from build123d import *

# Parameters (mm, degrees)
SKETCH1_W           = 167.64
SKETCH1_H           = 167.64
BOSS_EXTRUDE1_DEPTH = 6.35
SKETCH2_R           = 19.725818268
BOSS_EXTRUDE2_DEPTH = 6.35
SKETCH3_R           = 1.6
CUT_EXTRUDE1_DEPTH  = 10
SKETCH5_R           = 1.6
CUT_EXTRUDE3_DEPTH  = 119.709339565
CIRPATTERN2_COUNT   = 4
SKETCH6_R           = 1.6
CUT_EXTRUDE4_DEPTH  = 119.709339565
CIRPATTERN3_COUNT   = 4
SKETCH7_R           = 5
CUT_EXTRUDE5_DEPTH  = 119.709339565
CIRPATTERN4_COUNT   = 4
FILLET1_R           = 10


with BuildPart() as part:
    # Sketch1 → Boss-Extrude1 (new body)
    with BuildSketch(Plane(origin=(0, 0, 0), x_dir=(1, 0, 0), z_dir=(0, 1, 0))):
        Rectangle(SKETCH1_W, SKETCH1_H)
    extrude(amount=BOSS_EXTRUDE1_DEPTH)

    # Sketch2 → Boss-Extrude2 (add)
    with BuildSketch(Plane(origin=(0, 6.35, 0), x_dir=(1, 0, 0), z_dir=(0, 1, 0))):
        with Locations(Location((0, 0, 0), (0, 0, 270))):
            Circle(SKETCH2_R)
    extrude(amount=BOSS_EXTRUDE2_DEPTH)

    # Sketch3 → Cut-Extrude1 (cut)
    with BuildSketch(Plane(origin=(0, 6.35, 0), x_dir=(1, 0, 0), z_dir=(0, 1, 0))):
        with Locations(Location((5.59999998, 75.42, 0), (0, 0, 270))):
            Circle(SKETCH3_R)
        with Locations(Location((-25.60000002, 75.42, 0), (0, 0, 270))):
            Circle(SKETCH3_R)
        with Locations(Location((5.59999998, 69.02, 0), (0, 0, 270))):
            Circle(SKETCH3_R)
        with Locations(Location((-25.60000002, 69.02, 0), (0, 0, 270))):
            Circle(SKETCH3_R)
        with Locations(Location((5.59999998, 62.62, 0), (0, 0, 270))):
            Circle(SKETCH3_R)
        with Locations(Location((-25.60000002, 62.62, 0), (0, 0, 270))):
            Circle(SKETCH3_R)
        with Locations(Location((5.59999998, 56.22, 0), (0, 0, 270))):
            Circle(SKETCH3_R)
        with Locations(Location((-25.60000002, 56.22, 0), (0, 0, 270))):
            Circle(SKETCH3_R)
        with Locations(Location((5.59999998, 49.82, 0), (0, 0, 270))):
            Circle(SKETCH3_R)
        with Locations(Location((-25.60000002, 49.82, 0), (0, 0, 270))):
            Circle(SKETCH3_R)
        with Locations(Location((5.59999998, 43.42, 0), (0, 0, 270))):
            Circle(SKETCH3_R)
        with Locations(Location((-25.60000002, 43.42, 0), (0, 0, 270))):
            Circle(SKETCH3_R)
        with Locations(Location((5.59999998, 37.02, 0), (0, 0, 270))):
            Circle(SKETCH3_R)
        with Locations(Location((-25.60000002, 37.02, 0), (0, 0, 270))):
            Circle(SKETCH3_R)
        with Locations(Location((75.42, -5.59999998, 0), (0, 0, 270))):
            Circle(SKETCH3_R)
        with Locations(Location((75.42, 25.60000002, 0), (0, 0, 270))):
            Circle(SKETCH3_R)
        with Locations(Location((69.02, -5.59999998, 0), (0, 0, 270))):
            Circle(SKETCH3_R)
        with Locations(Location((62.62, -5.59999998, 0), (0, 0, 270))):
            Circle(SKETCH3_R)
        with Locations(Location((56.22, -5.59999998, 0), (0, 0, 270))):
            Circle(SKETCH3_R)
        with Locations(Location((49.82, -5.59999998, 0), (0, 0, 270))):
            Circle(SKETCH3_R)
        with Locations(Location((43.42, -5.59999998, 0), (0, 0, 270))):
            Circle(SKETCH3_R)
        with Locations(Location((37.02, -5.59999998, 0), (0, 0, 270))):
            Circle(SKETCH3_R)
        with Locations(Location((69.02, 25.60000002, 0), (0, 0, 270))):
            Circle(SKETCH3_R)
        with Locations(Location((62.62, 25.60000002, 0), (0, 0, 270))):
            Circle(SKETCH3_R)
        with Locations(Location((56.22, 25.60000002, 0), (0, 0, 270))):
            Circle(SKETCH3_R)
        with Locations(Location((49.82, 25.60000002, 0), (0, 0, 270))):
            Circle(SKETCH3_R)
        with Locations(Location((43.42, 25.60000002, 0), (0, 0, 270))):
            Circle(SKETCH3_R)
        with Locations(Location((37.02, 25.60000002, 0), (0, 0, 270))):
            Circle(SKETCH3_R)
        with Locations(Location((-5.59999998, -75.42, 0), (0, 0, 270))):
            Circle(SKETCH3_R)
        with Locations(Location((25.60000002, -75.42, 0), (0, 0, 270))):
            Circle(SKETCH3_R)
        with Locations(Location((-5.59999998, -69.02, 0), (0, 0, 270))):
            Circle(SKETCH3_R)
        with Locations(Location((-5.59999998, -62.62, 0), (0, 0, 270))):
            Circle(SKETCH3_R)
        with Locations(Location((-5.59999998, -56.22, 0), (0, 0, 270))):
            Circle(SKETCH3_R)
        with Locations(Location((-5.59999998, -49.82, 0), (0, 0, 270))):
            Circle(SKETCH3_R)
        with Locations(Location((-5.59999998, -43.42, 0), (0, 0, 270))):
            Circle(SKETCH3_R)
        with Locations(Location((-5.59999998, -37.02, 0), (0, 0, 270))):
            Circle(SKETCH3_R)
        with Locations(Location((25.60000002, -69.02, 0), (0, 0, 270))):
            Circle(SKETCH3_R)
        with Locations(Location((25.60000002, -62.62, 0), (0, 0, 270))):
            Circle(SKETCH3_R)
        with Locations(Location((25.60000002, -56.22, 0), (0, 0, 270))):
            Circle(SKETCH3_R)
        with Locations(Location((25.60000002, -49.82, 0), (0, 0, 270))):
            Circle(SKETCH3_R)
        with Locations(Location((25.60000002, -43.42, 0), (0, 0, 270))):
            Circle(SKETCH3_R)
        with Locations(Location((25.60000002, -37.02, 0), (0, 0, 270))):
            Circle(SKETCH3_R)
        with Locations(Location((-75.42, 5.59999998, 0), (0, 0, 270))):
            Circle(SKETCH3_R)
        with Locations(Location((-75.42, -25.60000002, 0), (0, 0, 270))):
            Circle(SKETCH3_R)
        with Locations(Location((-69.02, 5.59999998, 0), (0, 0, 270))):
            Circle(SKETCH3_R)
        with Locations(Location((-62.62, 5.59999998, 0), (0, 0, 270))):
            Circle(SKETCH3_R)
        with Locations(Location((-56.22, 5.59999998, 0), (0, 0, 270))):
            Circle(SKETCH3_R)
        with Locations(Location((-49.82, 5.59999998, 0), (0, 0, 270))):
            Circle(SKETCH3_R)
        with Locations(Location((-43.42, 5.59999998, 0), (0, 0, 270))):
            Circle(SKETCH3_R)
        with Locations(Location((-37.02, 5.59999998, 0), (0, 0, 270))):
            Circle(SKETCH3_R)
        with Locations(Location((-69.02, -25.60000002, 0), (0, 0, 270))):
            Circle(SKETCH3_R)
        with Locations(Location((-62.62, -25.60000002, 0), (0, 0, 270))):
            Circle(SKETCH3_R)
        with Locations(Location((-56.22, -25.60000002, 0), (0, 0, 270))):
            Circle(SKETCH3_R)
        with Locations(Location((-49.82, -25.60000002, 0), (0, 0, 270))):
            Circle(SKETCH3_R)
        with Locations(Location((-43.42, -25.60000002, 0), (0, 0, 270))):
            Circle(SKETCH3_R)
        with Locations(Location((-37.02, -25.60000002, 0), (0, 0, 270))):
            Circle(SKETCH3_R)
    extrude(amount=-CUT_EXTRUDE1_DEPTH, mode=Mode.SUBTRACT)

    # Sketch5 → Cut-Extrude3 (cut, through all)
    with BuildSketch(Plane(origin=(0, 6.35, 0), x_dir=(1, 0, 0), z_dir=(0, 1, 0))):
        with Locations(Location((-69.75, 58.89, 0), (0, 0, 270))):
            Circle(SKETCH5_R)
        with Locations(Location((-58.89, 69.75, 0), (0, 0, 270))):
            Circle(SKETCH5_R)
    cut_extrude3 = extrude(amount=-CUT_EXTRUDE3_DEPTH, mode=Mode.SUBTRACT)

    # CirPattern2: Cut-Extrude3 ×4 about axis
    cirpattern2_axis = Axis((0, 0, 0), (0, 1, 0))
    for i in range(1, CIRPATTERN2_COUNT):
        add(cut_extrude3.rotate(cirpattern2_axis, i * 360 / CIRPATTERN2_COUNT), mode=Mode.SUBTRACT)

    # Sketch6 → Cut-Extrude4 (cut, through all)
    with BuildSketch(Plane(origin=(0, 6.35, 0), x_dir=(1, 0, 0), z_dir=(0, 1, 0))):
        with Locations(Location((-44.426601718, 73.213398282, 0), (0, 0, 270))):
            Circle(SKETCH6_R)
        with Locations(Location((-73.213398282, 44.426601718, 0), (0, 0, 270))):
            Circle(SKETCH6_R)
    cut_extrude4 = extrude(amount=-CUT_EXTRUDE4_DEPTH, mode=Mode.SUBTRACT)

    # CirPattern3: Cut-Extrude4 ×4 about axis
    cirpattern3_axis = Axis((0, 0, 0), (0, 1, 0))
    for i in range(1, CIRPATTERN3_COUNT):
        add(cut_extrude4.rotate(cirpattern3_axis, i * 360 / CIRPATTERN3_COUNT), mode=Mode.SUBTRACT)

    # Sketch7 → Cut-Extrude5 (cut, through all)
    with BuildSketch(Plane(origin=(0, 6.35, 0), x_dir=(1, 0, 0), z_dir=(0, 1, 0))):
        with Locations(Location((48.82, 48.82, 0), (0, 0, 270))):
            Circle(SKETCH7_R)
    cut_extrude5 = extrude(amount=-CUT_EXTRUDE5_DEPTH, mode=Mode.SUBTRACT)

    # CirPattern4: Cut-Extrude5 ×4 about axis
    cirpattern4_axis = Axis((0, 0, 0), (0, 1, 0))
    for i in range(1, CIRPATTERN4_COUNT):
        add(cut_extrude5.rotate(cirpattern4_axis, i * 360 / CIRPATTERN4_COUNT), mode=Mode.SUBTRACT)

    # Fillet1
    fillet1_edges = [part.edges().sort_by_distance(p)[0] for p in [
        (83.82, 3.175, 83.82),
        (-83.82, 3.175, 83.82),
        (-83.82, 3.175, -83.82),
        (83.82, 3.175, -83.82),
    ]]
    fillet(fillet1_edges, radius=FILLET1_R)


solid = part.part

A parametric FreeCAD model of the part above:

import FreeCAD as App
import Part
import Sketcher


def edges_at(feature, points):
    """Names of the edges that pass closest to the given points."""
    edges = feature.Shape.Edges
    near = lambda p: min(range(len(edges)), key=lambda i: edges[i].distToShape(Part.Vertex(*p))[0])
    return sorted({f"Edge{near(p) + 1}" for p in points})

doc = App.newDocument("Part")
params = doc.addObject("Spreadsheet::Sheet", "Params")
for row, (alias, value) in enumerate([
    ("sketch1_width", "167.64 mm"),
    ("pad1_length", "6.35 mm"),
    ("pad2_length", "6.35 mm"),
    ("sketch3_diameter", "3.2 mm"),
    ("pocket1_length", "10 mm"),
    ("sketch4_diameter", "3.2 mm"),
    ("sketch5_diameter", "3.2 mm"),
    ("sketch6_diameter", "10 mm"),
    ("fillet_radius", "10 mm"),
], start=1):
    params.set(f"A{row}", alias)
    params.set(f"B{row}", "=" + value)
    params.setAlias(f"B{row}", alias)

body = doc.addObject("PartDesign::Body", "Body")

sketch1 = doc.addObject("Sketcher::SketchObject", "Sketch")
body.addObject(sketch1)
sketch1.AttachmentSupport = (doc.XZ_Plane, [""])
sketch1.MapMode = "FlatFace"
sketch1.addGeometry([
    Part.LineSegment(App.Vector(-83.82, -83.82, 0), App.Vector(-83.82, 83.82, 0)),
    Part.LineSegment(App.Vector(-83.82, 83.82, 0), App.Vector(83.82, 83.82, 0)),
    Part.LineSegment(App.Vector(83.82, 83.82, 0), App.Vector(83.82, -83.82, 0)),
    Part.LineSegment(App.Vector(83.82, -83.82, 0), App.Vector(-83.82, -83.82, 0)),
], False)
sketch1.addConstraint([
    Sketcher.Constraint("Coincident", 0, 2, 1, 1),
    Sketcher.Constraint("Coincident", 1, 2, 2, 1),
    Sketcher.Constraint("Coincident", 2, 2, 3, 1),
    Sketcher.Constraint("Coincident", 3, 2, 0, 1),
    Sketcher.Constraint("Vertical", 0),
    Sketcher.Constraint("Horizontal", 1),
    Sketcher.Constraint("Vertical", 2),
    Sketcher.Constraint("Horizontal", 3),
    Sketcher.Constraint("Symmetric", 0, 2, 2, 2, -1, 1),
    Sketcher.Constraint("Equal", 3, 0),
    Sketcher.Constraint("DistanceX", 1, 1, 1, 2, 167.64),
])
sketch1.setExpression("Constraints[10]", "Params.sketch1_width")
pad1 = doc.addObject("PartDesign::Pad", "Pad")
body.addObject(pad1)
pad1.Profile = sketch1
pad1.setExpression("Length", "Params.pad1_length")
pad1.Reversed = True

sketch2 = doc.addObject("Sketcher::SketchObject", "Sketch001")
body.addObject(sketch2)
sketch2.AttachmentSupport = (doc.XZ_Plane, [""])
sketch2.MapMode = "FlatFace"
sketch2.AttachmentOffset = App.Placement(App.Vector(0, 0, -6.35), App.Rotation())
sketch2.addGeometry(Part.Circle(App.Vector(0, 0, 0), App.Vector(0, 0, 1), 19.725818), False)
sketch2.addConstraint([
    Sketcher.Constraint("Coincident", 0, 3, -1, 1),
    Sketcher.Constraint("Diameter", 0, 39.451637),
])
pad2 = doc.addObject("PartDesign::Pad", "Pad001")
body.addObject(pad2)
pad2.Profile = sketch2
pad2.setExpression("Length", "Params.pad2_length")
pad2.Reversed = True

sketch3 = doc.addObject("Sketcher::SketchObject", "Sketch002")
body.addObject(sketch3)
sketch3.AttachmentSupport = (doc.XZ_Plane, [""])
sketch3.MapMode = "FlatFace"
sketch3.AttachmentOffset = App.Placement(App.Vector(0, 0, -6.35), App.Rotation())
sketch3.addGeometry([
    Part.Circle(App.Vector(5.6, -75.42, 0), App.Vector(0, 0, 1), 1.6),
    Part.Circle(App.Vector(-25.6, -75.42, 0), App.Vector(0, 0, 1), 1.6),
    Part.Circle(App.Vector(5.6, -69.02, 0), App.Vector(0, 0, 1), 1.6),
    Part.Circle(App.Vector(-25.6, -69.02, 0), App.Vector(0, 0, 1), 1.6),
    Part.Circle(App.Vector(5.6, -62.62, 0), App.Vector(0, 0, 1), 1.6),
    Part.Circle(App.Vector(-25.6, -62.62, 0), App.Vector(0, 0, 1), 1.6),
    Part.Circle(App.Vector(5.6, -56.22, 0), App.Vector(0, 0, 1), 1.6),
    Part.Circle(App.Vector(-25.6, -56.22, 0), App.Vector(0, 0, 1), 1.6),
    Part.Circle(App.Vector(5.6, -49.82, 0), App.Vector(0, 0, 1), 1.6),
    Part.Circle(App.Vector(-25.6, -49.82, 0), App.Vector(0, 0, 1), 1.6),
    Part.Circle(App.Vector(5.6, -43.42, 0), App.Vector(0, 0, 1), 1.6),
    Part.Circle(App.Vector(-25.6, -43.42, 0), App.Vector(0, 0, 1), 1.6),
    Part.Circle(App.Vector(5.6, -37.02, 0), App.Vector(0, 0, 1), 1.6),
    Part.Circle(App.Vector(-25.6, -37.02, 0), App.Vector(0, 0, 1), 1.6),
    Part.Circle(App.Vector(75.42, 5.6, 0), App.Vector(0, 0, 1), 1.6),
    Part.Circle(App.Vector(75.42, -25.6, 0), App.Vector(0, 0, 1), 1.6),
    Part.Circle(App.Vector(69.02, 5.6, 0), App.Vector(0, 0, 1), 1.6),
    Part.Circle(App.Vector(62.62, 5.6, 0), App.Vector(0, 0, 1), 1.6),
    Part.Circle(App.Vector(56.22, 5.6, 0), App.Vector(0, 0, 1), 1.6),
    Part.Circle(App.Vector(49.82, 5.6, 0), App.Vector(0, 0, 1), 1.6),
    Part.Circle(App.Vector(43.42, 5.6, 0), App.Vector(0, 0, 1), 1.6),
    Part.Circle(App.Vector(37.02, 5.6, 0), App.Vector(0, 0, 1), 1.6),
    Part.Circle(App.Vector(69.02, -25.6, 0), App.Vector(0, 0, 1), 1.6),
    Part.Circle(App.Vector(62.62, -25.6, 0), App.Vector(0, 0, 1), 1.6),
    Part.Circle(App.Vector(56.22, -25.6, 0), App.Vector(0, 0, 1), 1.6),
    Part.Circle(App.Vector(49.82, -25.6, 0), App.Vector(0, 0, 1), 1.6),
    Part.Circle(App.Vector(43.42, -25.6, 0), App.Vector(0, 0, 1), 1.6),
    Part.Circle(App.Vector(37.02, -25.6, 0), App.Vector(0, 0, 1), 1.6),
    Part.Circle(App.Vector(-5.6, 75.42, 0), App.Vector(0, 0, 1), 1.6),
    Part.Circle(App.Vector(25.6, 75.42, 0), App.Vector(0, 0, 1), 1.6),
    Part.Circle(App.Vector(-5.6, 69.02, 0), App.Vector(0, 0, 1), 1.6),
    Part.Circle(App.Vector(-5.6, 62.62, 0), App.Vector(0, 0, 1), 1.6),
    Part.Circle(App.Vector(-5.6, 56.22, 0), App.Vector(0, 0, 1), 1.6),
    Part.Circle(App.Vector(-5.6, 49.82, 0), App.Vector(0, 0, 1), 1.6),
    Part.Circle(App.Vector(-5.6, 43.42, 0), App.Vector(0, 0, 1), 1.6),
    Part.Circle(App.Vector(-5.6, 37.02, 0), App.Vector(0, 0, 1), 1.6),
    Part.Circle(App.Vector(25.6, 69.02, 0), App.Vector(0, 0, 1), 1.6),
    Part.Circle(App.Vector(25.6, 62.62, 0), App.Vector(0, 0, 1), 1.6),
    Part.Circle(App.Vector(25.6, 56.22, 0), App.Vector(0, 0, 1), 1.6),
    Part.Circle(App.Vector(25.6, 49.82, 0), App.Vector(0, 0, 1), 1.6),
    Part.Circle(App.Vector(25.6, 43.42, 0), App.Vector(0, 0, 1), 1.6),
    Part.Circle(App.Vector(25.6, 37.02, 0), App.Vector(0, 0, 1), 1.6),
    Part.Circle(App.Vector(-75.42, -5.6, 0), App.Vector(0, 0, 1), 1.6),
    Part.Circle(App.Vector(-75.42, 25.6, 0), App.Vector(0, 0, 1), 1.6),
    Part.Circle(App.Vector(-69.02, -5.6, 0), App.Vector(0, 0, 1), 1.6),
    Part.Circle(App.Vector(-62.62, -5.6, 0), App.Vector(0, 0, 1), 1.6),
    Part.Circle(App.Vector(-56.22, -5.6, 0), App.Vector(0, 0, 1), 1.6),
    Part.Circle(App.Vector(-49.82, -5.6, 0), App.Vector(0, 0, 1), 1.6),
    Part.Circle(App.Vector(-43.42, -5.6, 0), App.Vector(0, 0, 1), 1.6),
    Part.Circle(App.Vector(-37.02, -5.6, 0), App.Vector(0, 0, 1), 1.6),
    Part.Circle(App.Vector(-69.02, 25.6, 0), App.Vector(0, 0, 1), 1.6),
    Part.Circle(App.Vector(-62.62, 25.6, 0), App.Vector(0, 0, 1), 1.6),
    Part.Circle(App.Vector(-56.22, 25.6, 0), App.Vector(0, 0, 1), 1.6),
    Part.Circle(App.Vector(-49.82, 25.6, 0), App.Vector(0, 0, 1), 1.6),
    Part.Circle(App.Vector(-43.42, 25.6, 0), App.Vector(0, 0, 1), 1.6),
    Part.Circle(App.Vector(-37.02, 25.6, 0), App.Vector(0, 0, 1), 1.6),
], False)
sketch3.addConstraint([
    Sketcher.Constraint("Equal", 0, 1),
    Sketcher.Constraint("Equal", 1, 2),
    Sketcher.Constraint("Equal", 2, 3),
    Sketcher.Constraint("Equal", 3, 4),
    Sketcher.Constraint("Equal", 4, 5),
    Sketcher.Constraint("Equal", 5, 6),
    Sketcher.Constraint("Equal", 6, 7),
    Sketcher.Constraint("Equal", 7, 8),
    Sketcher.Constraint("Equal", 8, 9),
    Sketcher.Constraint("Equal", 9, 10),
    Sketcher.Constraint("Equal", 10, 11),
    Sketcher.Constraint("Equal", 11, 12),
    Sketcher.Constraint("Equal", 12, 13),
    Sketcher.Constraint("Equal", 13, 14),
    Sketcher.Constraint("Equal", 14, 15),
    Sketcher.Constraint("Equal", 15, 16),
    Sketcher.Constraint("Equal", 16, 17),
    Sketcher.Constraint("Equal", 17, 18),
    Sketcher.Constraint("Equal", 18, 19),
    Sketcher.Constraint("Equal", 19, 20),
    Sketcher.Constraint("Equal", 20, 21),
    Sketcher.Constraint("Equal", 21, 22),
    Sketcher.Constraint("Equal", 22, 23),
    Sketcher.Constraint("Equal", 23, 24),
    Sketcher.Constraint("Equal", 24, 25),
    Sketcher.Constraint("Equal", 25, 26),
    Sketcher.Constraint("Equal", 26, 27),
    Sketcher.Constraint("Equal", 27, 28),
    Sketcher.Constraint("Equal", 28, 29),
    Sketcher.Constraint("Equal", 29, 30),
    Sketcher.Constraint("Equal", 30, 31),
    Sketcher.Constraint("Equal", 31, 32),
    Sketcher.Constraint("Equal", 32, 33),
    Sketcher.Constraint("Equal", 33, 34),
    Sketcher.Constraint("Equal", 34, 35),
    Sketcher.Constraint("Equal", 35, 36),
    Sketcher.Constraint("Equal", 36, 37),
    Sketcher.Constraint("Equal", 37, 38),
    Sketcher.Constraint("Equal", 38, 39),
    Sketcher.Constraint("Equal", 39, 40),
    Sketcher.Constraint("Equal", 40, 41),
    Sketcher.Constraint("Equal", 41, 42),
    Sketcher.Constraint("Equal", 42, 43),
    Sketcher.Constraint("Equal", 43, 44),
    Sketcher.Constraint("Equal", 44, 45),
    Sketcher.Constraint("Equal", 45, 46),
    Sketcher.Constraint("Equal", 46, 47),
    Sketcher.Constraint("Equal", 47, 48),
    Sketcher.Constraint("Equal", 48, 49),
    Sketcher.Constraint("Equal", 49, 50),
    Sketcher.Constraint("Equal", 50, 51),
    Sketcher.Constraint("Equal", 51, 52),
    Sketcher.Constraint("Equal", 52, 53),
    Sketcher.Constraint("Equal", 53, 54),
    Sketcher.Constraint("Equal", 54, 55),
    Sketcher.Constraint("Symmetric", 0, 3, 28, 3, -1, 1),
    Sketcher.Constraint("Symmetric", 1, 3, 29, 3, -1, 1),
    Sketcher.Constraint("Symmetric", 2, 3, 30, 3, -1, 1),
    Sketcher.Constraint("Symmetric", 4, 3, 31, 3, -1, 1),
    Sketcher.Constraint("Symmetric", 6, 3, 32, 3, -1, 1),
    Sketcher.Constraint("Symmetric", 8, 3, 33, 3, -1, 1),
    Sketcher.Constraint("Symmetric", 10, 3, 34, 3, -1, 1),
    Sketcher.Constraint("Symmetric", 12, 3, 35, 3, -1, 1),
    Sketcher.Constraint("Symmetric", 3, 3, 36, 3, -1, 1),
    Sketcher.Constraint("Symmetric", 5, 3, 37, 3, -1, 1),
    Sketcher.Constraint("Symmetric", 7, 3, 38, 3, -1, 1),
    Sketcher.Constraint("Symmetric", 9, 3, 39, 3, -1, 1),
    Sketcher.Constraint("Symmetric", 11, 3, 40, 3, -1, 1),
    Sketcher.Constraint("Symmetric", 13, 3, 41, 3, -1, 1),
    Sketcher.Constraint("Symmetric", 14, 3, 42, 3, -1, 1),
    Sketcher.Constraint("Symmetric", 15, 3, 43, 3, -1, 1),
    Sketcher.Constraint("Symmetric", 16, 3, 44, 3, -1, 1),
    Sketcher.Constraint("Symmetric", 17, 3, 45, 3, -1, 1),
    Sketcher.Constraint("Symmetric", 18, 3, 46, 3, -1, 1),
    Sketcher.Constraint("Symmetric", 19, 3, 47, 3, -1, 1),
    Sketcher.Constraint("Symmetric", 20, 3, 48, 3, -1, 1),
    Sketcher.Constraint("Symmetric", 21, 3, 49, 3, -1, 1),
    Sketcher.Constraint("Symmetric", 22, 3, 50, 3, -1, 1),
    Sketcher.Constraint("Symmetric", 23, 3, 51, 3, -1, 1),
    Sketcher.Constraint("Symmetric", 24, 3, 52, 3, -1, 1),
    Sketcher.Constraint("Symmetric", 25, 3, 53, 3, -1, 1),
    Sketcher.Constraint("Symmetric", 26, 3, 54, 3, -1, 1),
    Sketcher.Constraint("Symmetric", 27, 3, 55, 3, -1, 1),
    Sketcher.Constraint("Horizontal", 0, 3, 1, 3),
    Sketcher.Constraint("Horizontal", 2, 3, 3, 3),
    Sketcher.Constraint("Horizontal", 4, 3, 5, 3),
    Sketcher.Constraint("Horizontal", 6, 3, 7, 3),
    Sketcher.Constraint("Horizontal", 8, 3, 9, 3),
    Sketcher.Constraint("Horizontal", 10, 3, 11, 3),
    Sketcher.Constraint("Horizontal", 12, 3, 13, 3),
    Sketcher.Constraint("Horizontal", 14, 3, 16, 3),
    Sketcher.Constraint("Horizontal", 16, 3, 17, 3),
    Sketcher.Constraint("Horizontal", 17, 3, 18, 3),
    Sketcher.Constraint("Horizontal", 18, 3, 19, 3),
    Sketcher.Constraint("Horizontal", 19, 3, 20, 3),
    Sketcher.Constraint("Horizontal", 20, 3, 21, 3),
    Sketcher.Constraint("Horizontal", 15, 3, 22, 3),
    Sketcher.Constraint("Horizontal", 22, 3, 23, 3),
    Sketcher.Constraint("Horizontal", 23, 3, 24, 3),
    Sketcher.Constraint("Horizontal", 24, 3, 25, 3),
    Sketcher.Constraint("Horizontal", 25, 3, 26, 3),
    Sketcher.Constraint("Horizontal", 26, 3, 27, 3),
    Sketcher.Constraint("Vertical", 0, 3, 2, 3),
    Sketcher.Constraint("Vertical", 1, 3, 3, 3),
    Sketcher.Constraint("Vertical", 2, 3, 4, 3),
    Sketcher.Constraint("Vertical", 3, 3, 5, 3),
    Sketcher.Constraint("Vertical", 4, 3, 6, 3),
    Sketcher.Constraint("Vertical", 5, 3, 7, 3),
    Sketcher.Constraint("Vertical", 6, 3, 8, 3),
    Sketcher.Constraint("Vertical", 7, 3, 9, 3),
    Sketcher.Constraint("Vertical", 8, 3, 10, 3),
    Sketcher.Constraint("Vertical", 9, 3, 11, 3),
    Sketcher.Constraint("Vertical", 10, 3, 12, 3),
    Sketcher.Constraint("Vertical", 11, 3, 13, 3),
    Sketcher.Constraint("Vertical", 14, 3, 15, 3),
    Sketcher.Constraint("Vertical", 16, 3, 22, 3),
    Sketcher.Constraint("Vertical", 17, 3, 23, 3),
    Sketcher.Constraint("Vertical", 18, 3, 24, 3),
    Sketcher.Constraint("Vertical", 19, 3, 25, 3),
    Sketcher.Constraint("Vertical", 20, 3, 26, 3),
    Sketcher.Constraint("Vertical", 21, 3, 27, 3),
    Sketcher.Constraint("Diameter", 0, 3.2),
    Sketcher.Constraint("DistanceX", 20, 3, 14, 3, 32.0),
    Sketcher.Constraint("DistanceX", 21, 3, 16, 3, 32.0),
    Sketcher.Constraint("DistanceY", 34, 3, 28, 3, 32.0),
    Sketcher.Constraint("DistanceY", 35, 3, 30, 3, 32.0),
    Sketcher.Constraint("DistanceX", -1, 1, 0, 3, 5.6),
    Sketcher.Constraint("DistanceX", 1, 3, -1, 1, 25.6),
    Sketcher.Constraint("DistanceY", -1, 1, 14, 3, 5.6),
    Sketcher.Constraint("DistanceY", 15, 3, -1, 1, 25.6),
    Sketcher.Constraint("DistanceY", 0, 3, 2, 3, 6.4),
    Sketcher.Constraint("DistanceY", 2, 3, 4, 3, 6.4),
    Sketcher.Constraint("DistanceY", 4, 3, 6, 3, 6.4),
    Sketcher.Constraint("DistanceY", 6, 3, 8, 3, 6.4),
    Sketcher.Constraint("DistanceX", 16, 3, 14, 3, 6.4),
    Sketcher.Constraint("DistanceX", 17, 3, 16, 3, 6.4),
    Sketcher.Constraint("DistanceX", 18, 3, 17, 3, 6.4),
    Sketcher.Constraint("DistanceX", 19, 3, 18, 3, 6.4),
    Sketcher.Constraint("DistanceY", 0, 3, -1, 1, 75.42),
    Sketcher.Constraint("DistanceX", -1, 1, 14, 3, 75.42),
])
sketch3.setExpression("Constraints[121]", "Params.sketch3_diameter")
pocket1 = doc.addObject("PartDesign::Pocket", "Pocket")
body.addObject(pocket1)
pocket1.Profile = sketch3
pocket1.setExpression("Length", "Params.pocket1_length")
pocket1.Reversed = True

sketch4 = doc.addObject("Sketcher::SketchObject", "Sketch003")
body.addObject(sketch4)
sketch4.AttachmentSupport = (doc.XZ_Plane, [""])
sketch4.MapMode = "FlatFace"
sketch4.AttachmentOffset = App.Placement(App.Vector(0, 0, -6.35), App.Rotation())
sketch4.addGeometry([
    Part.Circle(App.Vector(-69.75, -58.89, 0), App.Vector(0, 0, 1), 1.6),
    Part.Circle(App.Vector(-58.89, -69.75, 0), App.Vector(0, 0, 1), 1.6),
], False)
sketch4.addConstraint([
    Sketcher.Constraint("Equal", 0, 1),
    Sketcher.Constraint("Diameter", 0, 3.2),
    Sketcher.Constraint("DistanceX", 0, 3, -1, 1, 69.75),
    Sketcher.Constraint("DistanceY", 0, 3, -1, 1, 58.89),
    Sketcher.Constraint("DistanceX", 1, 3, -1, 1, 58.89),
    Sketcher.Constraint("DistanceY", 1, 3, -1, 1, 69.75),
])
sketch4.setExpression("Constraints[1]", "Params.sketch4_diameter")
pocket2 = doc.addObject("PartDesign::Pocket", "Pocket001")
body.addObject(pocket2)
pocket2.Profile = sketch4
pocket2.Type = "ThroughAll"
pocket2.Reversed = True
doc.recompute()

polarpattern = doc.addObject("PartDesign::PolarPattern", "PolarPattern")
body.addObject(polarpattern)
polarpattern.Originals = [pocket2]
polarpattern.Axis = (doc.Y_Axis, [""])
polarpattern.Angle = 360
polarpattern.Occurrences = 4
body.Tip = polarpattern

sketch5 = doc.addObject("Sketcher::SketchObject", "Sketch004")
body.addObject(sketch5)
sketch5.AttachmentSupport = (doc.XZ_Plane, [""])
sketch5.MapMode = "FlatFace"
sketch5.AttachmentOffset = App.Placement(App.Vector(0, 0, -6.35), App.Rotation())
sketch5.addGeometry([
    Part.Circle(App.Vector(-44.426602, -73.213398, 0), App.Vector(0, 0, 1), 1.6),
    Part.Circle(App.Vector(-73.213398, -44.426602, 0), App.Vector(0, 0, 1), 1.6),
], False)
sketch5.addConstraint([
    Sketcher.Constraint("Equal", 0, 1),
    Sketcher.Constraint("Diameter", 0, 3.2),
    Sketcher.Constraint("DistanceX", 0, 3, -1, 1, 44.426602),
    Sketcher.Constraint("DistanceY", 0, 3, -1, 1, 73.213398),
    Sketcher.Constraint("DistanceX", 1, 3, -1, 1, 73.213398),
    Sketcher.Constraint("DistanceY", 1, 3, -1, 1, 44.426602),
])
sketch5.setExpression("Constraints[1]", "Params.sketch5_diameter")
pocket3 = doc.addObject("PartDesign::Pocket", "Pocket002")
body.addObject(pocket3)
pocket3.Profile = sketch5
pocket3.Type = "ThroughAll"
pocket3.Reversed = True
doc.recompute()

polarpattern2 = doc.addObject("PartDesign::PolarPattern", "PolarPattern001")
body.addObject(polarpattern2)
polarpattern2.Originals = [pocket3]
polarpattern2.Axis = (doc.Y_Axis, [""])
polarpattern2.Angle = 360
polarpattern2.Occurrences = 4
body.Tip = polarpattern2

sketch6 = doc.addObject("Sketcher::SketchObject", "Sketch005")
body.addObject(sketch6)
sketch6.AttachmentSupport = (doc.XZ_Plane, [""])
sketch6.MapMode = "FlatFace"
sketch6.AttachmentOffset = App.Placement(App.Vector(0, 0, -6.35), App.Rotation())
sketch6.addGeometry(Part.Circle(App.Vector(48.82, -48.82, 0), App.Vector(0, 0, 1), 5), False)
sketch6.addConstraint([
    Sketcher.Constraint("Diameter", 0, 10.0),
    Sketcher.Constraint("DistanceX", -1, 1, 0, 3, 48.82),
    Sketcher.Constraint("DistanceY", 0, 3, -1, 1, 48.82),
])
sketch6.setExpression("Constraints[0]", "Params.sketch6_diameter")
pocket4 = doc.addObject("PartDesign::Pocket", "Pocket003")
body.addObject(pocket4)
pocket4.Profile = sketch6
pocket4.Type = "ThroughAll"
pocket4.Reversed = True
doc.recompute()

polarpattern3 = doc.addObject("PartDesign::PolarPattern", "PolarPattern002")
body.addObject(polarpattern3)
polarpattern3.Originals = [pocket4]
polarpattern3.Axis = (doc.Y_Axis, [""])
polarpattern3.Angle = 360
polarpattern3.Occurrences = 4
body.Tip = polarpattern3
doc.recompute()

fillet = doc.addObject("PartDesign::Fillet", "Fillet")
body.addObject(fillet)
fillet.Base = (polarpattern3, edges_at(polarpattern3, [
    (83.82, 3.175, 83.82),
    (-83.82, 3.175, 83.82),
    (-83.82, 3.175, -83.82),
    (83.82, 3.175, -83.82),
]))
fillet.setExpression("Radius", "Params.fillet_radius")

doc.recompute()
